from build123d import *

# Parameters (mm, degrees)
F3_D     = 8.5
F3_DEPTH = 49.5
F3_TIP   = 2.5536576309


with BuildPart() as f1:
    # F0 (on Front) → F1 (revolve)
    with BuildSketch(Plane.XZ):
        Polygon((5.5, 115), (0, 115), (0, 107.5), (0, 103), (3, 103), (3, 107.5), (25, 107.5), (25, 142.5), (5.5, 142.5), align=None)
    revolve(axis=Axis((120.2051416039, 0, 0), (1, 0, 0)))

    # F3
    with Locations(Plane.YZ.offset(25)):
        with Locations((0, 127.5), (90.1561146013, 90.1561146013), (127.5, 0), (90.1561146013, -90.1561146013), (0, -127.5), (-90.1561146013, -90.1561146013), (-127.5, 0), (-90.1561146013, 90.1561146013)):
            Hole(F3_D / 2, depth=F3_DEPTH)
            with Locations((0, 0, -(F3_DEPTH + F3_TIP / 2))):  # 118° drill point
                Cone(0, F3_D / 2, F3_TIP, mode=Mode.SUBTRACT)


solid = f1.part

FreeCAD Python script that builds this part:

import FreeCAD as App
import Part
import Sketcher

V = App.Vector

doc = App.newDocument("Part")
body = doc.addObject("PartDesign::Body", "Body")

# Sketch on XZ plane
sketch1 = doc.addObject("Sketcher::SketchObject", "Sketch")
body.addObject(sketch1)
sketch1.AttachmentSupport = (doc.XZ_Plane, [""])
sketch1.MapMode = "FlatFace"
sketch1.addGeometry(Part.LineSegment(V(5.5, 115, 0), V(0, 115, 0)), False)
sketch1.addGeometry(Part.LineSegment(V(0, 115, 0), V(0, 103, 0)), False)
sketch1.addGeometry(Part.LineSegment(V(0, 103, 0), V(3, 103, 0)), False)
sketch1.addGeometry(Part.LineSegment(V(3, 103, 0), V(3, 107.5, 0)), False)
sketch1.addGeometry(Part.LineSegment(V(3, 107.5, 0), V(25, 107.5, 0)), False)
sketch1.addGeometry(Part.LineSegment(V(25, 107.5, 0), V(25, 142.5, 0)), False)
sketch1.addGeometry(Part.LineSegment(V(25, 142.5, 0), V(5.5, 142.5, 0)), False)
sketch1.addGeometry(Part.LineSegment(V(5.5, 142.5, 0), V(5.5, 115, 0)), False)
sketch1.addConstraint(Sketcher.Constraint("Coincident", 0, 2, 1, 1))
sketch1.addConstraint(Sketcher.Constraint("Coincident", 1, 2, 2, 1))
sketch1.addConstraint(Sketcher.Constraint("Coincident", 2, 2, 3, 1))
sketch1.addConstraint(Sketcher.Constraint("Coincident", 3, 2, 4, 1))
sketch1.addConstraint(Sketcher.Constraint("Coincident", 4, 2, 5, 1))
sketch1.addConstraint(Sketcher.Constraint("Coincident", 5, 2, 6, 1))
sketch1.addConstraint(Sketcher.Constraint("Coincident", 6, 2, 7, 1))
sketch1.addConstraint(Sketcher.Constraint("Coincident", 7, 2, 0, 1))
sketch1.addConstraint(Sketcher.Constraint("Horizontal", 0))
sketch1.addConstraint(Sketcher.Constraint("Vertical", 1))
sketch1.addConstraint(Sketcher.Constraint("Horizontal", 2))
sketch1.addConstraint(Sketcher.Constraint("Vertical", 3))
sketch1.addConstraint(Sketcher.Constraint("Horizontal", 4))
sketch1.addConstraint(Sketcher.Constraint("Vertical", 5))
sketch1.addConstraint(Sketcher.Constraint("Horizontal", 6))
sketch1.addConstraint(Sketcher.Constraint("Vertical", 7))
sketch1.addConstraint(Sketcher.Constraint("PointOnObject", 0, 2, -2))
sketch1.addConstraint(Sketcher.Constraint("DistanceX", 2, 1, 2, 2, 3.0))
sketch1.addConstraint(Sketcher.Constraint("DistanceX", 4, 1, 4, 2, 22.0))
sketch1.addConstraint(Sketcher.Constraint("DistanceY", 1, 2, 1, 1, 12.0))
sketch1.addConstraint(Sketcher.Constraint("DistanceY", 5, 1, 5, 2, 35.0))
sketch1.addConstraint(Sketcher.Constraint("DistanceX", 0, 2, 0, 1, 5.5))
sketch1.addConstraint(Sketcher.Constraint("DistanceY", 3, 1, 3, 2, 4.5))
sketch1.addConstraint(Sketcher.Constraint("DistanceY", -1, 1, 0, 2, 115.0))
revolution = doc.addObject("PartDesign::Revolution", "Revolution")
body.addObject(revolution)
revolution.Profile = sketch1
revolution.ReferenceAxis = (sketch1, ["H_Axis"])
revolution.Angle = 360

# Sketch on YZ plane
sketch2 = doc.addObject("Sketcher::SketchObject", "Sketch001")
body.addObject(sketch2)
sketch2.AttachmentSupport = (doc.YZ_Plane, [""])
sketch2.MapMode = "FlatFace"
sketch2.AttachmentOffset = App.Placement(V(0, 0, 25), App.Rotation())
sketch2.addGeometry(Part.Circle(V(0, 127.5, 0), V(0, 0, 1), 4.2), False)
sketch2.addGeometry(Part.Circle(V(90.2, 90.2, 0), V(0, 0, 1), 4.2), False)
sketch2.addGeometry(Part.Circle(V(127.5, 0, 0), V(0, 0, 1), 4.2), False)
sketch2.addGeometry(Part.Circle(V(90.2, -90.2, 0), V(0, 0, 1), 4.2), False)
sketch2.addGeometry(Part.Circle(V(0, -127.5, 0), V(0, 0, 1), 4.2), False)
sketch2.addGeometry(Part.Circle(V(-90.2, -90.2, 0), V(0, 0, 1), 4.2), False)
sketch2.addGeometry(Part.Circle(V(-127.5, 0, 0), V(0, 0, 1), 4.2), False)
sketch2.addGeometry(Part.Circle(V(-90.2, 90.2, 0), V(0, 0, 1), 4.2), False)
sketch2.addConstraint(Sketcher.Constraint("Equal", 0, 1))
sketch2.addConstraint(Sketcher.Constraint("Equal", 1, 2))
sketch2.addConstraint(Sketcher.Constraint("Equal", 2, 3))
sketch2.addConstraint(Sketcher.Constraint("Equal", 3, 4))
sketch2.addConstraint(Sketcher.Constraint("Equal", 4, 5))
sketch2.addConstraint(Sketcher.Constraint("Equal", 5, 6))
sketch2.addConstraint(Sketcher.Constraint("Equal", 6, 7))
sketch2.addConstraint(Sketcher.Constraint("Symmetric", 0, 3, 4, 3, -1, 1))
sketch2.addConstraint(Sketcher.Constraint("Symmetric", 1, 3, 5, 3, -1, 1))
sketch2.addConstraint(Sketcher.Constraint("Symmetric", 2, 3, 6, 3, -1, 1))
sketch2.addConstraint(Sketcher.Constraint("Symmetric", 3, 3, 7, 3, -1, 1))
sketch2.addConstraint(Sketcher.Constraint("Symmetric", 3, 3, 5, 3, -2))
sketch2.addConstraint(Sketcher.Constraint("PointOnObject", 0, 3, -2))
sketch2.addConstraint(Sketcher.Constraint("PointOnObject", 2, 3, -1))
sketch2.addConstraint(Sketcher.Constraint("Diameter", 0, 8.5))
sketch2.addConstraint(Sketcher.Constraint("DistanceY", 4, 3, 0, 3, 255.0))
sketch2.addConstraint(Sketcher.Constraint("DistanceX", -1, 1, 2, 3, 127.5))
sketch2.addConstraint(Sketcher.Constraint("DistanceY", 3, 3, 1, 3, 180.312229))
sketch2.addConstraint(Sketcher.Constraint("DistanceX", 5, 3, 3, 3, 180.312229))
doc.recompute()
hole = doc.addObject("PartDesign::Hole", "Hole")
body.addObject(hole)
hole.Profile = sketch2
hole.ThreadType = "None"
hole.Diameter = 8.5
hole.DepthType = "Dimension"
hole.Depth = 49.5
hole.DrillPoint = "Angled"
hole.DrillPointAngle = 118

doc.recompute()
